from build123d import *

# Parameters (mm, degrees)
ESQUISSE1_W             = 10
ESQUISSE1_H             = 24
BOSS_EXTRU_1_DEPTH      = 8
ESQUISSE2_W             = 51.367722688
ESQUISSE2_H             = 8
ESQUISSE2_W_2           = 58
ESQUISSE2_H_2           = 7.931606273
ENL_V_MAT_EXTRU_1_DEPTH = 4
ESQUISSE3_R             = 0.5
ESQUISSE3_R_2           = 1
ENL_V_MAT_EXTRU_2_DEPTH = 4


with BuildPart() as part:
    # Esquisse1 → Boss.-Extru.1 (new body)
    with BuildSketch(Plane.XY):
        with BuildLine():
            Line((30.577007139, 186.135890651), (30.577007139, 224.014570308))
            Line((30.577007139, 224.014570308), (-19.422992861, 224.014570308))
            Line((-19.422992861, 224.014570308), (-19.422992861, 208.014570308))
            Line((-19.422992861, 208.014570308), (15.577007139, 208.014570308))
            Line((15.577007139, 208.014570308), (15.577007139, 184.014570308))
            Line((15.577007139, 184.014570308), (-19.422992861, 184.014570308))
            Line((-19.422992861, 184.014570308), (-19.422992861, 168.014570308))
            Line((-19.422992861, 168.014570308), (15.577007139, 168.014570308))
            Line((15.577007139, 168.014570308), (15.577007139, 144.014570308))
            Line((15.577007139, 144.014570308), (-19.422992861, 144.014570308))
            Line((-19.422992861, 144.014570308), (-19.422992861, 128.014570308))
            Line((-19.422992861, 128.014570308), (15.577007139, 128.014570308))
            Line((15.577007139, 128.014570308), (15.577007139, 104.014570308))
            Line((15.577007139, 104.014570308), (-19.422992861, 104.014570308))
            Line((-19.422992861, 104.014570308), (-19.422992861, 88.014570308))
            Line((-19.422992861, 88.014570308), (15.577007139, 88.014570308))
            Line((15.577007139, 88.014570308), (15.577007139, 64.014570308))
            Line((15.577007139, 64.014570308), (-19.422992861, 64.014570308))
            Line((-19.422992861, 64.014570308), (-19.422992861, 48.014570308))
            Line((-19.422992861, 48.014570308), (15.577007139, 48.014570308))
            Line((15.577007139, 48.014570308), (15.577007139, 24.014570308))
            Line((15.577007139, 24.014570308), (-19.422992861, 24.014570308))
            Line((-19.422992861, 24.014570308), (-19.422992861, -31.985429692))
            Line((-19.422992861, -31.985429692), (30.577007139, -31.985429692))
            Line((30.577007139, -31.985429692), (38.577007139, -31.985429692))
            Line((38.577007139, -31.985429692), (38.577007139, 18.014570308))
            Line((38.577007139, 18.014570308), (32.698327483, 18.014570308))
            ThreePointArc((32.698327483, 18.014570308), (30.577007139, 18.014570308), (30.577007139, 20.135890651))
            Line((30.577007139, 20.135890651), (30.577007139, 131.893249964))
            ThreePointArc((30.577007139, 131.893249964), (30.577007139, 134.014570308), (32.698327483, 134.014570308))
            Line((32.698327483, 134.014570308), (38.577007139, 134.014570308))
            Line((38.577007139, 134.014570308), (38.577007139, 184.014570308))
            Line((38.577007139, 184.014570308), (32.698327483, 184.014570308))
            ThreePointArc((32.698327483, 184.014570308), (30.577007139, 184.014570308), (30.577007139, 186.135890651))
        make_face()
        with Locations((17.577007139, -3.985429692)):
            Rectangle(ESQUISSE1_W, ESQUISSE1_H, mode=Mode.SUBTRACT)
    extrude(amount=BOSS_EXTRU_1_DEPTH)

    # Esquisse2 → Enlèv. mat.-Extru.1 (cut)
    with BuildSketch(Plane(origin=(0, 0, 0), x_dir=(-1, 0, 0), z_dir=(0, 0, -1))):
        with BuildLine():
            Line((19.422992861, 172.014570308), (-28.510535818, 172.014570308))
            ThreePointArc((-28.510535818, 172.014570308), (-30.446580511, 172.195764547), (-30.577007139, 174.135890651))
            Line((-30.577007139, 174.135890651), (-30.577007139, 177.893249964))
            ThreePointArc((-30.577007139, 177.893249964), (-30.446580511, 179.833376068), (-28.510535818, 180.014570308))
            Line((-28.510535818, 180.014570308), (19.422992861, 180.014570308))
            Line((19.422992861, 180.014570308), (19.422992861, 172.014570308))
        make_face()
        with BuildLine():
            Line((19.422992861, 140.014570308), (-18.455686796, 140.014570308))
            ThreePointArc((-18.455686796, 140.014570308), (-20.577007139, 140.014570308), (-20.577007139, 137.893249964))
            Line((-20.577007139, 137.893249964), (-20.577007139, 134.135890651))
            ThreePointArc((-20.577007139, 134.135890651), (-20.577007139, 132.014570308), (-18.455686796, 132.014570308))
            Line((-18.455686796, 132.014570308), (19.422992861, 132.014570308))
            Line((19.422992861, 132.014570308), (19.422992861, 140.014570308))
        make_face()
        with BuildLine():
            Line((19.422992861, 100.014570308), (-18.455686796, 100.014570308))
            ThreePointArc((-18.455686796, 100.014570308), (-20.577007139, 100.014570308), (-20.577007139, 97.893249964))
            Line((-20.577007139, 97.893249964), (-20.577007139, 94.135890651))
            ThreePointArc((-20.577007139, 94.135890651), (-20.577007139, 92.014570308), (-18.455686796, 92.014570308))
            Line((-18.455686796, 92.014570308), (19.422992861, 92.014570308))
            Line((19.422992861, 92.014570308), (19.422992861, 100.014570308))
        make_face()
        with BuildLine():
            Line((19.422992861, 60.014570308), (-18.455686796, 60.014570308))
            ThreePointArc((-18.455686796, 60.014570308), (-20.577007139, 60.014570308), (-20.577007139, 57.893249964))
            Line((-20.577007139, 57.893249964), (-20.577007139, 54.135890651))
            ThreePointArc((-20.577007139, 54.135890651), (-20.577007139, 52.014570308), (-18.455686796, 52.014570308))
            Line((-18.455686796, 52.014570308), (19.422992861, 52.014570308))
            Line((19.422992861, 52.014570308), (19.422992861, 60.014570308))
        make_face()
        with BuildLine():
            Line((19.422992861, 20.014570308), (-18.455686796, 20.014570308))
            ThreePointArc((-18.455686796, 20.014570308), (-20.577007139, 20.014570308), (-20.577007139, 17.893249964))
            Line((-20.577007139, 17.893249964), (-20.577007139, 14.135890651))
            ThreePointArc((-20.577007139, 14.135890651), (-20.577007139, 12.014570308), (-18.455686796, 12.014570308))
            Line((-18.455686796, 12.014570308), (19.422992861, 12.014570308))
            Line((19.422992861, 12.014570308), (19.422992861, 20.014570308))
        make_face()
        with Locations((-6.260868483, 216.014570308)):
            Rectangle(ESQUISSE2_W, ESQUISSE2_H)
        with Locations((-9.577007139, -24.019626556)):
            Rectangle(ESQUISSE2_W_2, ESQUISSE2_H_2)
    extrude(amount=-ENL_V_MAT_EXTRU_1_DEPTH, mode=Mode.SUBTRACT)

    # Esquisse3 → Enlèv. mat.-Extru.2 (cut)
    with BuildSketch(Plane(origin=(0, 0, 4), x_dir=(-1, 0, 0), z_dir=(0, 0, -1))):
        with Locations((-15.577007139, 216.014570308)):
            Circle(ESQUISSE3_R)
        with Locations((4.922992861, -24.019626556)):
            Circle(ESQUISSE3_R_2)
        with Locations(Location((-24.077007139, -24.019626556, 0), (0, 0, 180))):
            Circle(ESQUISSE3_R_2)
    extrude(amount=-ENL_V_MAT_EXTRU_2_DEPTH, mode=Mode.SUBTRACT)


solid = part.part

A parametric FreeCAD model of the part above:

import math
import FreeCAD as App
import Part
import Sketcher

V = App.Vector

doc = App.newDocument("Part")
body = doc.addObject("PartDesign::Body", "Body")

# Sketch on XY plane
sketch1 = body.newObject("Sketcher::SketchObject", "Sketch")
sketch1.AttachmentSupport = (doc.getObject("XY_Plane"), [""])
sketch1.MapMode = "FlatFace"
sketch1.addGeometry([
    Part.LineSegment(V(30.577007, 186.135891, 0), V(30.577007, 224.01457, 0)),  # 0
    Part.LineSegment(V(30.577007, 224.01457, 0), V(-19.422993, 224.01457, 0)),  # 1
    Part.LineSegment(V(-19.422993, 224.01457, 0), V(-19.422993, 208.01457, 0)),  # 2
    Part.LineSegment(V(-19.422993, 208.01457, 0), V(15.577007, 208.01457, 0)),  # 3
    Part.LineSegment(V(15.577007, 208.01457, 0), V(15.577007, 184.01457, 0)),  # 4
    Part.LineSegment(V(15.577007, 184.01457, 0), V(-19.422993, 184.01457, 0)),  # 5
    Part.LineSegment(V(-19.422993, 184.01457, 0), V(-19.422993, 168.01457, 0)),  # 6
    Part.LineSegment(V(-19.422993, 168.01457, 0), V(15.577007, 168.01457, 0)),  # 7
    Part.LineSegment(V(15.577007, 168.01457, 0), V(15.577007, 144.01457, 0)),  # 8
    Part.LineSegment(V(15.577007, 144.01457, 0), V(-19.422993, 144.01457, 0)),  # 9
    Part.LineSegment(V(-19.422993, 144.01457, 0), V(-19.422993, 128.01457, 0)),  # 10
    Part.LineSegment(V(-19.422993, 128.01457, 0), V(15.577007, 128.01457, 0)),  # 11
    Part.LineSegment(V(15.577007, 128.01457, 0), V(15.577007, 104.01457, 0)),  # 12
    Part.LineSegment(V(15.577007, 104.01457, 0), V(-19.422993, 104.01457, 0)),  # 13
    Part.LineSegment(V(-19.422993, 104.01457, 0), V(-19.422993, 88.01457, 0)),  # 14
    Part.LineSegment(V(-19.422993, 88.01457, 0), V(15.577007, 88.01457, 0)),  # 15
    Part.LineSegment(V(15.577007, 88.01457, 0), V(15.577007, 64.01457, 0)),  # 16
    Part.LineSegment(V(15.577007, 64.01457, 0), V(-19.422993, 64.01457, 0)),  # 17
    Part.LineSegment(V(-19.422993, 64.01457, 0), V(-19.422993, 48.01457, 0)),  # 18
    Part.LineSegment(V(-19.422993, 48.01457, 0), V(15.577007, 48.01457, 0)),  # 19
    Part.LineSegment(V(15.577007, 48.01457, 0), V(15.577007, 24.01457, 0)),  # 20
    Part.LineSegment(V(15.577007, 24.01457, 0), V(-19.422993, 24.01457, 0)),  # 21
    Part.LineSegment(V(-19.422993, 24.01457, 0), V(-19.422993, -31.98543, 0)),  # 22
    Part.LineSegment(V(-19.422993, -31.98543, 0), V(38.577007, -31.98543, 0)),  # 23
    Part.LineSegment(V(38.577007, -31.98543, 0), V(38.577007, 18.01457, 0)),  # 24
    Part.LineSegment(V(38.577007, 18.01457, 0), V(32.698327, 18.01457, 0)),  # 25
    Part.ArcOfCircle(Part.Circle(V(31.637667, 19.07523, 0), V(0, 0, 1), 1.5), math.radians(135), math.radians(315)),  # 26
    Part.LineSegment(V(30.577007, 20.135891, 0), V(30.577007, 131.89325, 0)),  # 27
    Part.ArcOfCircle(Part.Circle(V(31.637667, 132.95391, 0), V(0, 0, 1), 1.5), math.radians(45), math.radians(225)),  # 28
    Part.LineSegment(V(32.698327, 134.01457, 0), V(38.577007, 134.01457, 0)),  # 29
    Part.LineSegment(V(38.577007, 134.01457, 0), V(38.577007, 184.01457, 0)),  # 30
    Part.LineSegment(V(38.577007, 184.01457, 0), V(32.698327, 184.01457, 0)),  # 31
    Part.ArcOfCircle(Part.Circle(V(31.637667, 185.07523, 0), V(0, 0, 1), 1.5), math.radians(135), math.radians(315)),  # 32
    Part.LineSegment(V(22.577007, -15.98543, 0), V(12.577007, -15.98543, 0)),  # 33
    Part.LineSegment(V(12.577007, -15.98543, 0), V(12.577007, 8.01457, 0)),  # 34
    Part.LineSegment(V(12.577007, 8.01457, 0), V(22.577007, 8.01457, 0)),  # 35
    Part.LineSegment(V(22.577007, 8.01457, 0), V(22.577007, -15.98543, 0)),  # 36
], False)
sketch1.addConstraint([
    Sketcher.Constraint("Coincident", 0, 2, 1, 1),
    Sketcher.Constraint("Coincident", 1, 2, 2, 1),
    Sketcher.Constraint("Coincident", 2, 2, 3, 1),
    Sketcher.Constraint("Coincident", 3, 2, 4, 1),
    Sketcher.Constraint("Coincident", 4, 2, 5, 1),
    Sketcher.Constraint("Coincident", 5, 2, 6, 1),
    Sketcher.Constraint("Coincident", 6, 2, 7, 1),
    Sketcher.Constraint("Coincident", 7, 2, 8, 1),
    Sketcher.Constraint("Coincident", 8, 2, 9, 1),
    Sketcher.Constraint("Coincident", 9, 2, 10, 1),
    Sketcher.Constraint("Coincident", 10, 2, 11, 1),
    Sketcher.Constraint("Coincident", 11, 2, 12, 1),
    Sketcher.Constraint("Coincident", 12, 2, 13, 1),
    Sketcher.Constraint("Coincident", 13, 2, 14, 1),
    Sketcher.Constraint("Coincident", 14, 2, 15, 1),
    Sketcher.Constraint("Coincident", 15, 2, 16, 1),
    Sketcher.Constraint("Coincident", 16, 2, 17, 1),
    Sketcher.Constraint("Coincident", 17, 2, 18, 1),
    Sketcher.Constraint("Coincident", 18, 2, 19, 1),
    Sketcher.Constraint("Coincident", 19, 2, 20, 1),
    Sketcher.Constraint("Coincident", 20, 2, 21, 1),
    Sketcher.Constraint("Coincident", 21, 2, 22, 1),
    Sketcher.Constraint("Coincident", 22, 2, 23, 1),
    Sketcher.Constraint("Coincident", 23, 2, 24, 1),
    Sketcher.Constraint("Coincident", 24, 2, 25, 1),
    Sketcher.Constraint("Coincident", 25, 2, 26, 2),
    Sketcher.Constraint("Coincident", 26, 1, 27, 1),
    Sketcher.Constraint("Coincident", 27, 2, 28, 2),
    Sketcher.Constraint("Coincident", 28, 1, 29, 1),
    Sketcher.Constraint("Coincident", 29, 2, 30, 1),
    Sketcher.Constraint("Coincident", 30, 2, 31, 1),
    Sketcher.Constraint("Coincident", 31, 2, 32, 2),
    Sketcher.Constraint("Coincident", 32, 1, 0, 1),
    Sketcher.Constraint("Coincident", 33, 2, 34, 1),
    Sketcher.Constraint("Coincident", 34, 2, 35, 1),
    Sketcher.Constraint("Coincident", 35, 2, 36, 1),
    Sketcher.Constraint("Coincident", 36, 2, 33, 1),
    Sketcher.Constraint("Vertical", 0),
    Sketcher.Constraint("Horizontal", 1),
    Sketcher.Constraint("Vertical", 2),
    Sketcher.Constraint("Horizontal", 3),
    Sketcher.Constraint("Vertical", 4),
    Sketcher.Constraint("Horizontal", 5),
    Sketcher.Constraint("Vertical", 6),
    Sketcher.Constraint("Horizontal", 7),
    Sketcher.Constraint("Vertical", 8),
    Sketcher.Constraint("Horizontal", 9),
    Sketcher.Constraint("Vertical", 10),
    Sketcher.Constraint("Horizontal", 11),
    Sketcher.Constraint("Vertical", 12),
    Sketcher.Constraint("Horizontal", 13),
    Sketcher.Constraint("Vertical", 14),
    Sketcher.Constraint("Horizontal", 15),
    Sketcher.Constraint("Vertical", 16),
    Sketcher.Constraint("Horizontal", 17),
    Sketcher.Constraint("Vertical", 18),
    Sketcher.Constraint("Horizontal", 19),
    Sketcher.Constraint("Vertical", 20),
    Sketcher.Constraint("Horizontal", 21),
    Sketcher.Constraint("Vertical", 22),
    Sketcher.Constraint("Horizontal", 23),
    Sketcher.Constraint("Vertical", 24),
    Sketcher.Constraint("Horizontal", 25),
    Sketcher.Constraint("Vertical", 27),
    Sketcher.Constraint("Horizontal", 29),
    Sketcher.Constraint("Vertical", 30),
    Sketcher.Constraint("Horizontal", 31),
    Sketcher.Constraint("Horizontal", 33),
    Sketcher.Constraint("Vertical", 34),
    Sketcher.Constraint("Horizontal", 35),
    Sketcher.Constraint("Vertical", 36),
    Sketcher.Constraint("Equal", 26, 28),
    Sketcher.Constraint("Equal", 28, 32),
    Sketcher.Constraint("Horizontal", 5, 2, 30, 2),
    Sketcher.Constraint("Vertical", 26, 3, 28, 3),
    Sketcher.Constraint("Vertical", 28, 3, 32, 3),
    Sketcher.Constraint("Vertical", 2, 2, 5, 2),
    Sketcher.Constraint("Vertical", 4, 2, 7, 2),
    Sketcher.Constraint("Vertical", 6, 2, 9, 2),
    Sketcher.Constraint("Vertical", 8, 2, 11, 2),
    Sketcher.Constraint("Vertical", 10, 2, 13, 2),
    Sketcher.Constraint("Vertical", 12, 2, 15, 2),
    Sketcher.Constraint("Vertical", 14, 2, 17, 2),
    Sketcher.Constraint("Vertical", 16, 2, 19, 2),
    Sketcher.Constraint("Vertical", 18, 2, 21, 2),
    Sketcher.Constraint("Vertical", 0, 2, 26, 1),
    Sketcher.Constraint("Vertical", 25, 2, 28, 1),
    Sketcher.Constraint("Vertical", 24, 2, 29, 2),
    Sketcher.Constraint("Vertical", 28, 1, 31, 2),
    Sketcher.Constraint("Equal", 2, 6),
    Sketcher.Constraint("Equal", 4, 8),
    Sketcher.Constraint("Equal", 6, 10),
    Sketcher.Constraint("Equal", 8, 12),
    Sketcher.Constraint("Equal", 10, 14),
    Sketcher.Constraint("Equal", 12, 16),
    Sketcher.Constraint("Equal", 14, 18),
    Sketcher.Constraint("Equal", 16, 20),
    Sketcher.Constraint("Equal", 1, 24),
    Sketcher.Constraint("Equal", 24, 30),
    Sketcher.Constraint("Equal", 20, 34),
    Sketcher.Constraint("Radius", 26, 1.5),
    Sketcher.Constraint("DistanceX", 1, 2, 1, 1, 50.0),
    Sketcher.Constraint("DistanceX", 3, 1, 3, 2, 35.0),
    Sketcher.Constraint("DistanceX", 23, 1, 23, 2, 58.0),
    Sketcher.Constraint("DistanceX", 33, 2, 33, 1, 10.0),
    Sketcher.Constraint("DistanceY", 2, 2, 2, 1, 16.0),
    Sketcher.Constraint("DistanceY", 4, 2, 4, 1, 24.0),
    Sketcher.Constraint("DistanceY", 22, 2, 22, 1, 56.0),
    Sketcher.Constraint("DistanceX", 33, 2, 23, 2, 26.0),
    Sketcher.Constraint("DistanceY", 23, 2, 33, 2, 16.0),
    Sketcher.Constraint("DistanceX", 25, 2, 25, 1, 5.87868),
    Sketcher.Constraint("DistanceY", -1, 1, 26, 3, 19.07523),
    Sketcher.Constraint("DistanceY", -1, 1, 28, 3, 132.95391),
    Sketcher.Constraint("DistanceX", -1, 1, 26, 3, 31.637667),
])
pad1 = body.newObject("PartDesign::Pad", "Pad")
pad1.Profile = sketch1
pad1.Length = 8

# Sketch on XY plane
sketch2 = body.newObject("Sketcher::SketchObject", "Sketch001")
sketch2.AttachmentSupport = (doc.getObject("XY_Plane"), [""])
sketch2.MapMode = "FlatFace"
sketch2.addGeometry([
    Part.LineSegment(V(28.510536, 172.01457, 0), V(-19.422993, 172.01457, 0)),  # 0
    Part.LineSegment(V(-19.422993, 172.01457, 0), V(-19.422993, 180.01457, 0)),  # 1
    Part.LineSegment(V(-19.422993, 180.01457, 0), V(28.510536, 180.01457, 0)),  # 2
    Part.ArcOfCircle(Part.Circle(V(29.372121, 178.786698, 0), V(0, 0, 1), 1.5), math.radians(-36.557678), math.radians(125.056916)),  # 3
    Part.LineSegment(V(30.577007, 177.89325, 0), V(30.577007, 174.135891, 0)),  # 4
    Part.ArcOfCircle(Part.Circle(V(29.372121, 173.242443, 0), V(0, 0, 1), 1.5), math.radians(-125.056917), math.radians(36.557678)),  # 5
    Part.LineSegment(V(-19.422993, 140.01457, 0), V(18.455687, 140.01457, 0)),  # 6
    Part.ArcOfCircle(Part.Circle(V(19.516347, 138.95391, 0), V(0, 0, 1), 1.5), math.radians(-45), math.radians(135)),  # 7
    Part.LineSegment(V(20.577007, 137.89325, 0), V(20.577007, 134.135891, 0)),  # 8
    Part.ArcOfCircle(Part.Circle(V(19.516347, 133.07523, 0), V(0, 0, 1), 1.5), math.radians(-135), math.radians(45)),  # 9
    Part.LineSegment(V(18.455687, 132.01457, 0), V(-19.422993, 132.01457, 0)),  # 10
    Part.LineSegment(V(-19.422993, 132.01457, 0), V(-19.422993, 140.01457, 0)),  # 11
    Part.LineSegment(V(-19.422993, 100.01457, 0), V(18.455687, 100.01457, 0)),  # 12
    Part.ArcOfCircle(Part.Circle(V(19.516347, 98.95391, 0), V(0, 0, 1), 1.5), math.radians(-45), math.radians(135)),  # 13
    Part.LineSegment(V(20.577007, 97.89325, 0), V(20.577007, 94.135891, 0)),  # 14
    Part.ArcOfCircle(Part.Circle(V(19.516347, 93.07523, 0), V(0, 0, 1), 1.5), math.radians(-135), math.radians(45)),  # 15
    Part.LineSegment(V(18.455687, 92.01457, 0), V(-19.422993, 92.01457, 0)),  # 16
    Part.LineSegment(V(-19.422993, 92.01457, 0), V(-19.422993, 100.01457, 0)),  # 17
    Part.LineSegment(V(-19.422993, 60.01457, 0), V(18.455687, 60.01457, 0)),  # 18
    Part.ArcOfCircle(Part.Circle(V(19.516347, 58.95391, 0), V(0, 0, 1), 1.5), math.radians(-45), math.radians(135)),  # 19
    Part.LineSegment(V(20.577007, 57.89325, 0), V(20.577007, 54.135891, 0)),  # 20
    Part.ArcOfCircle(Part.Circle(V(19.516347, 53.07523, 0), V(0, 0, 1), 1.5), math.radians(-135), math.radians(45)),  # 21
    Part.LineSegment(V(18.455687, 52.01457, 0), V(-19.422993, 52.01457, 0)),  # 22
    Part.LineSegment(V(-19.422993, 52.01457, 0), V(-19.422993, 60.01457, 0)),  # 23
    Part.LineSegment(V(-19.422993, 20.01457, 0), V(18.455687, 20.01457, 0)),  # 24
    Part.ArcOfCircle(Part.Circle(V(19.516347, 18.95391, 0), V(0, 0, 1), 1.5), math.radians(-45), math.radians(135)),  # 25
    Part.LineSegment(V(20.577007, 17.89325, 0), V(20.577007, 14.135891, 0)),  # 26
    Part.ArcOfCircle(Part.Circle(V(19.516347, 13.07523, 0), V(0, 0, 1), 1.5), math.radians(-135), math.radians(45)),  # 27
    Part.LineSegment(V(18.455687, 12.01457, 0), V(-19.422993, 12.01457, 0)),  # 28
    Part.LineSegment(V(-19.422993, 12.01457, 0), V(-19.422993, 20.01457, 0)),  # 29
    Part.LineSegment(V(31.94473, 220.01457, 0), V(31.94473, 212.01457, 0)),  # 30
    Part.LineSegment(V(31.94473, 212.01457, 0), V(-19.422993, 212.01457, 0)),  # 31
    Part.LineSegment(V(-19.422993, 212.01457, 0), V(-19.422993, 220.01457, 0)),  # 32
    Part.LineSegment(V(-19.422993, 220.01457, 0), V(31.94473, 220.01457, 0)),  # 33
    Part.LineSegment(V(38.577007, -20.053823, 0), V(38.577007, -27.98543, 0)),  # 34
    Part.LineSegment(V(38.577007, -27.98543, 0), V(-19.422993, -27.98543, 0)),  # 35
    Part.LineSegment(V(-19.422993, -27.98543, 0), V(-19.422993, -20.053823, 0)),  # 36
    Part.LineSegment(V(-19.422993, -20.053823, 0), V(38.577007, -20.053823, 0)),  # 37
], False)
sketch2.addConstraint([
    Sketcher.Constraint("Coincident", 0, 2, 1, 1),
    Sketcher.Constraint("Coincident", 1, 2, 2, 1),
    Sketcher.Constraint("Coincident", 2, 2, 3, 2),
    Sketcher.Constraint("Coincident", 3, 1, 4, 1),
    Sketcher.Constraint("Coincident", 4, 2, 5, 2),
    Sketcher.Constraint("Coincident", 5, 1, 0, 1),
    Sketcher.Constraint("Coincident", 6, 2, 7, 2),
    Sketcher.Constraint("Coincident", 7, 1, 8, 1),
    Sketcher.Constraint("Coincident", 8, 2, 9, 2),
    Sketcher.Constraint("Coincident", 9, 1, 10, 1),
    Sketcher.Constraint("Coincident", 10, 2, 11, 1),
    Sketcher.Constraint("Coincident", 11, 2, 6, 1),
    Sketcher.Constraint("Coincident", 12, 2, 13, 2),
    Sketcher.Constraint("Coincident", 13, 1, 14, 1),
    Sketcher.Constraint("Coincident", 14, 2, 15, 2),
    Sketcher.Constraint("Coincident", 15, 1, 16, 1),
    Sketcher.Constraint("Coincident", 16, 2, 17, 1),
    Sketcher.Constraint("Coincident", 17, 2, 12, 1),
    Sketcher.Constraint("Coincident", 18, 2, 19, 2),
    Sketcher.Constraint("Coincident", 19, 1, 20, 1),
    Sketcher.Constraint("Coincident", 20, 2, 21, 2),
    Sketcher.Constraint("Coincident", 21, 1, 22, 1),
    Sketcher.Constraint("Coincident", 22, 2, 23, 1),
    Sketcher.Constraint("Coincident", 23, 2, 18, 1),
    Sketcher.Constraint("Coincident", 24, 2, 25, 2),
    Sketcher.Constraint("Coincident", 25, 1, 26, 1),
    Sketcher.Constraint("Coincident", 26, 2, 27, 2),
    Sketcher.Constraint("Coincident", 27, 1, 28, 1),
    Sketcher.Constraint("Coincident", 28, 2, 29, 1),
    Sketcher.Constraint("Coincident", 29, 2, 24, 1),
    Sketcher.Constraint("Coincident", 30, 2, 31, 1),
    Sketcher.Constraint("Coincident", 31, 2, 32, 1),
    Sketcher.Constraint("Coincident", 32, 2, 33, 1),
    Sketcher.Constraint("Coincident", 33, 2, 30, 1),
    Sketcher.Constraint("Coincident", 34, 2, 35, 1),
    Sketcher.Constraint("Coincident", 35, 2, 36, 1),
    Sketcher.Constraint("Coincident", 36, 2, 37, 1),
    Sketcher.Constraint("Coincident", 37, 2, 34, 1),
    Sketcher.Constraint("Horizontal", 0),
    Sketcher.Constraint("Vertical", 1),
    Sketcher.Constraint("Horizontal", 2),
    Sketcher.Constraint("Vertical", 4),
    Sketcher.Constraint("Horizontal", 6),
    Sketcher.Constraint("Vertical", 8),
    Sketcher.Constraint("Horizontal", 10),
    Sketcher.Constraint("Vertical", 11),
    Sketcher.Constraint("Horizontal", 12),
    Sketcher.Constraint("Vertical", 14),
    Sketcher.Constraint("Horizontal", 16),
    Sketcher.Constraint("Vertical", 17),
    Sketcher.Constraint("Horizontal", 18),
    Sketcher.Constraint("Vertical", 20),
    Sketcher.Constraint("Horizontal", 22),
    Sketcher.Constraint("Vertical", 23),
    Sketcher.Constraint("Horizontal", 24),
    Sketcher.Constraint("Vertical", 26),
    Sketcher.Constraint("Horizontal", 28),
    Sketcher.Constraint("Vertical", 29),
    Sketcher.Constraint("Vertical", 30),
    Sketcher.Constraint("Horizontal", 31),
    Sketcher.Constraint("Vertical", 32),
    Sketcher.Constraint("Horizontal", 33),
    Sketcher.Constraint("Vertical", 34),
    Sketcher.Constraint("Horizontal", 35),
    Sketcher.Constraint("Vertical", 36),
    Sketcher.Constraint("Horizontal", 37),
    Sketcher.Constraint("Equal", 3, 5),
    Sketcher.Constraint("Equal", 5, 7),
    Sketcher.Constraint("Equal", 7, 9),
    Sketcher.Constraint("Equal", 9, 13),
    Sketcher.Constraint("Equal", 13, 15),
    Sketcher.Constraint("Equal", 15, 19),
    Sketcher.Constraint("Equal", 19, 21),
    Sketcher.Constraint("Equal", 21, 25),
    Sketcher.Constraint("Equal", 25, 27),
    Sketcher.Constraint("Vertical", 3, 3, 5, 3),
    Sketcher.Constraint("Vertical", 7, 3, 9, 3),
    Sketcher.Constraint("Vertical", 9, 3, 13, 3),
    Sketcher.Constraint("Vertical", 13, 3, 15, 3),
    Sketcher.Constraint("Vertical", 15, 3, 19, 3),
    Sketcher.Constraint("Vertical", 19, 3, 21, 3),
    Sketcher.Constraint("Vertical", 21, 3, 25, 3),
    Sketcher.Constraint("Vertical", 25, 3, 27, 3),
    Sketcher.Constraint("Vertical", 2, 2, 5, 1),
    Sketcher.Constraint("Vertical", 6, 2, 9, 1),
    Sketcher.Constraint("Vertical", 1, 2, 10, 2),
    Sketcher.Constraint("Vertical", 9, 1, 12, 2),
    Sketcher.Constraint("Vertical", 8, 2, 13, 1),
    Sketcher.Constraint("Vertical", 12, 2, 15, 1),
    Sketcher.Constraint("Vertical", 11, 2, 16, 2),
    Sketcher.Constraint("Vertical", 15, 1, 18, 2),
    Sketcher.Constraint("Vertical", 14, 2, 19, 1),
    Sketcher.Constraint("Vertical", 18, 2, 21, 1),
    Sketcher.Constraint("Vertical", 17, 2, 22, 2),
    Sketcher.Constraint("Vertical", 21, 1, 24, 2),
    Sketcher.Constraint("Vertical", 20, 2, 25, 1),
    Sketcher.Constraint("Vertical", 24, 2, 27, 1),
    Sketcher.Constraint("Vertical", 23, 2, 28, 2),
    Sketcher.Constraint("Vertical", 29, 2, 31, 2),
    Sketcher.Constraint("Vertical", 32, 2, 35, 2),
    Sketcher.Constraint("Equal", 4, 8),
    Sketcher.Constraint("Equal", 1, 11),
    Sketcher.Constraint("Equal", 8, 14),
    Sketcher.Constraint("Equal", 14, 20),
    Sketcher.Constraint("Equal", 20, 26),
    Sketcher.Constraint("Equal", 29, 30),
    Sketcher.Constraint("Radius", 3, 1.5),
    Sketcher.Constraint("DistanceX", 35, 2, 35, 1, 58.0),
    Sketcher.Constraint("DistanceY", 1, 1, 1, 2, 8.0),
    Sketcher.Constraint("DistanceY", 13, 3, 7, 3, 40.0),
    Sketcher.Constraint("DistanceY", 19, 3, 13, 3, 40.0),
    Sketcher.Constraint("DistanceY", 25, 3, 19, 3, 40.0),
    Sketcher.Constraint("DistanceY", 6, 2, 5, 1, 32.0),
    Sketcher.Constraint("DistanceY", 2, 2, 30, 2, 32.0),
    Sketcher.Constraint("DistanceY", 34, 2, 27, 1, 40.0),
    Sketcher.Constraint("DistanceX", 26, 2, 34, 2, 18.0),
    Sketcher.Constraint("DistanceX", 0, 2, 0, 1, 47.933529),
    Sketcher.Constraint("DistanceX", 6, 1, 6, 2, 37.87868),
    Sketcher.Constraint("DistanceX", 31, 2, 31, 1, 51.367723),
    Sketcher.Constraint("DistanceY", 34, 2, 34, 1, 7.931606),
    Sketcher.Constraint("DistanceX", -1, 1, 3, 3, 29.372121),
    Sketcher.Constraint("DistanceY", -1, 1, 7, 3, 138.95391),
    Sketcher.Constraint("DistanceY", -1, 1, 9, 3, 133.07523),
    Sketcher.Constraint("DistanceX", -1, 1, 30, 2, 31.94473),
])
pocket1 = body.newObject("PartDesign::Pocket", "Pocket")
pocket1.Profile = sketch2
pocket1.Length = 4
pocket1.Reversed = True

# Sketch on XY plane
sketch3 = body.newObject("Sketcher::SketchObject", "Sketch002")
sketch3.AttachmentSupport = (doc.getObject("XY_Plane"), [""])
sketch3.MapMode = "FlatFace"
sketch3.AttachmentOffset = App.Placement(V(0, 0, 4), App.Rotation())
sketch3.addGeometry([
    Part.Circle(V(15.577007, 216.01457, 0), V(0, 0, 1), 0.5),
    Part.Circle(V(-4.922993, -24.019627, 0), V(0, 0, 1), 1),
    Part.Circle(V(24.077007, -24.019627, 0), V(0, 0, 1), 1),
], False)
sketch3.addConstraint([
    Sketcher.Constraint("Equal", 1, 2),
    Sketcher.Constraint("Horizontal", 1, 3, 2, 3),
    Sketcher.Constraint("Diameter", 0, 1.0),
    Sketcher.Constraint("Diameter", 1, 2.0),
    Sketcher.Constraint("DistanceX", 1, 3, 2, 3, 29.0),
    Sketcher.Constraint("DistanceX", 1, 3, 0, 3, 20.5),
    Sketcher.Constraint("DistanceY", -1, 1, 0, 3, 216.01457),
    Sketcher.Constraint("DistanceX", -1, 1, 0, 3, 15.577007),
    Sketcher.Constraint("DistanceY", 1, 3, -1, 1, 24.019627),
])
pocket2 = body.newObject("PartDesign::Pocket", "Pocket001")
pocket2.Profile = sketch3
pocket2.Length = 4
pocket2.Reversed = True

doc.recompute()
